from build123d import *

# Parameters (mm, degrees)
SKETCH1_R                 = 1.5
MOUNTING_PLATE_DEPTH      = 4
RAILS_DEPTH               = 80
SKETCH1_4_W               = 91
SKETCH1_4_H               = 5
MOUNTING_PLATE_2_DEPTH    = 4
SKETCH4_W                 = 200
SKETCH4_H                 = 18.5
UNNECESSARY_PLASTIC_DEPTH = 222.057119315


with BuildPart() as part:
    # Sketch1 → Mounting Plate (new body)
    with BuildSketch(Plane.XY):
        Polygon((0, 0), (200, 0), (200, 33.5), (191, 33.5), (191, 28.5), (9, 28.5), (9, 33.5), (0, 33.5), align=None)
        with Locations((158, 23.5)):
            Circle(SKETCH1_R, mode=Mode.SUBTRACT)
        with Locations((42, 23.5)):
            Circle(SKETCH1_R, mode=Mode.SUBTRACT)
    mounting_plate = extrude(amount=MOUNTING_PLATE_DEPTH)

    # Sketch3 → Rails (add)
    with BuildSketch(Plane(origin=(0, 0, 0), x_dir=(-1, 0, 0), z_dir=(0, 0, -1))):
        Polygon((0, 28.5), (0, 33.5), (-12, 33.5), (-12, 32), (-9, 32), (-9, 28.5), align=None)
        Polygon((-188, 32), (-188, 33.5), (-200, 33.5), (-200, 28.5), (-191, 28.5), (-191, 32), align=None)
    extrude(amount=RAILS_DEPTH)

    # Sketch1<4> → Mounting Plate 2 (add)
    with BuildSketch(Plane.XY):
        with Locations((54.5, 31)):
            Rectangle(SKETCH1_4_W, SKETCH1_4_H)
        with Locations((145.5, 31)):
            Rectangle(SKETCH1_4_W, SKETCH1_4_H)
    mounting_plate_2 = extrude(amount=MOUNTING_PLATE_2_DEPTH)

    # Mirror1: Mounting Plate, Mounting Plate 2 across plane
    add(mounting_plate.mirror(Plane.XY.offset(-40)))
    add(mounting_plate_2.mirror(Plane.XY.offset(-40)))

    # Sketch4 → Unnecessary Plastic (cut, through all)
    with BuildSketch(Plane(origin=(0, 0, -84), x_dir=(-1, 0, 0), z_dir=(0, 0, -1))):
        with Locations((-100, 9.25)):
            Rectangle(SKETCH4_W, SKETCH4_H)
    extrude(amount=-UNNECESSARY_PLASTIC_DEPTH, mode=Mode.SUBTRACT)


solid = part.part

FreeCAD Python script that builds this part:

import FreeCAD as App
import Part
import Sketcher
from FreeCAD import Vector
Q = App.Units.Quantity

doc = App.newDocument("Part")
body = doc.addObject("PartDesign::Body", "Body")

sketch1 = body.newObject("Sketcher::SketchObject", "Sketch")
sketch1.AttachmentSupport = (doc.getObject("XY_Plane"), [""])
sketch1.MapMode = "FlatFace"
sketch1.addGeometry(Part.LineSegment(Vector(0, 0, 0), Vector(200, 0, 0)), False)
sketch1.addGeometry(Part.LineSegment(Vector(200, 0, 0), Vector(200, 33.5, 0)), False)
sketch1.addGeometry(Part.LineSegment(Vector(200, 33.5, 0), Vector(191, 33.5, 0)), False)
sketch1.addGeometry(Part.LineSegment(Vector(191, 33.5, 0), Vector(191, 28.5, 0)), False)
sketch1.addGeometry(Part.LineSegment(Vector(191, 28.5, 0), Vector(9, 28.5, 0)), False)
sketch1.addGeometry(Part.LineSegment(Vector(9, 28.5, 0), Vector(9, 33.5, 0)), False)
sketch1.addGeometry(Part.LineSegment(Vector(9, 33.5, 0), Vector(0, 33.5, 0)), False)
sketch1.addGeometry(Part.LineSegment(Vector(0, 33.5, 0), Vector(0, 0, 0)), False)
sketch1.addGeometry(Part.Circle(Vector(42, 23.5, 0), Vector(0, 0, 1), 1.5), False)
sketch1.addGeometry(Part.Circle(Vector(158, 23.5, 0), Vector(0, 0, 1), 1.5), False)
sketch1.addConstraint(Sketcher.Constraint("Coincident", 0, 2, 1, 1))
sketch1.addConstraint(Sketcher.Constraint("Coincident", 1, 2, 2, 1))
sketch1.addConstraint(Sketcher.Constraint("Coincident", 2, 2, 3, 1))
sketch1.addConstraint(Sketcher.Constraint("Coincident", 3, 2, 4, 1))
sketch1.addConstraint(Sketcher.Constraint("Coincident", 4, 2, 5, 1))
sketch1.addConstraint(Sketcher.Constraint("Coincident", 5, 2, 6, 1))
sketch1.addConstraint(Sketcher.Constraint("Coincident", 6, 2, 7, 1))
sketch1.addConstraint(Sketcher.Constraint("Coincident", 7, 2, 0, 1))
sketch1.addConstraint(Sketcher.Constraint("Horizontal", 0))
sketch1.addConstraint(Sketcher.Constraint("Vertical", 1))
sketch1.addConstraint(Sketcher.Constraint("Horizontal", 2))
sketch1.addConstraint(Sketcher.Constraint("Vertical", 3))
sketch1.addConstraint(Sketcher.Constraint("Horizontal", 4))
sketch1.addConstraint(Sketcher.Constraint("Vertical", 5))
sketch1.addConstraint(Sketcher.Constraint("Horizontal", 6))
sketch1.addConstraint(Sketcher.Constraint("Vertical", 7))
sketch1.addConstraint(Sketcher.Constraint("Coincident", 7, 2, -1, 1))
sketch1.addConstraint(Sketcher.Constraint("Equal", 8, 9))
sketch1.addConstraint(Sketcher.Constraint("Horizontal", 8, 3, 9, 3))
sketch1.addConstraint(Sketcher.Constraint("Horizontal", 2, 2, 5, 2))
sketch1.addConstraint(Sketcher.Constraint("Equal", 2, 6))
sketch1.addConstraint(Sketcher.Constraint("Diameter", 8, Q("3 mm")))
sketch1.addConstraint(Sketcher.Constraint("DistanceX", 0, 1, 0, 2, Q("200 mm")))
sketch1.addConstraint(Sketcher.Constraint("DistanceX", 2, 2, 2, 1, Q("9 mm")))
sketch1.addConstraint(Sketcher.Constraint("DistanceY", 3, 2, 3, 1, Q("5 mm")))
sketch1.addConstraint(Sketcher.Constraint("DistanceY", 1, 1, 1, 2, Q("33.5 mm")))
sketch1.addConstraint(Sketcher.Constraint("DistanceX", -1, 1, 8, 3, Q("42 mm")))
sketch1.addConstraint(Sketcher.Constraint("DistanceX", -1, 1, 9, 3, Q("158 mm")))
sketch1.addConstraint(Sketcher.Constraint("DistanceY", 9, 3, 1, 2, Q("10 mm")))
pad1 = body.newObject("PartDesign::Pad", "Pad")
pad1.Profile = sketch1
pad1.Length = 4

sketch2 = body.newObject("Sketcher::SketchObject", "Sketch001")
sketch2.AttachmentSupport = (doc.getObject("XY_Plane"), [""])
sketch2.MapMode = "FlatFace"
sketch2.addGeometry(Part.LineSegment(Vector(0, 28.5, 0), Vector(0, 33.5, 0)), False)
sketch2.addGeometry(Part.LineSegment(Vector(0, 33.5, 0), Vector(12, 33.5, 0)), False)
sketch2.addGeometry(Part.LineSegment(Vector(12, 33.5, 0), Vector(12, 32, 0)), False)
sketch2.addGeometry(Part.LineSegment(Vector(12, 32, 0), Vector(9, 32, 0)), False)
sketch2.addGeometry(Part.LineSegment(Vector(9, 32, 0), Vector(9, 28.5, 0)), False)
sketch2.addGeometry(Part.LineSegment(Vector(9, 28.5, 0), Vector(0, 28.5, 0)), False)
sketch2.addGeometry(Part.LineSegment(Vector(188, 32, 0), Vector(188, 33.5, 0)), False)
sketch2.addGeometry(Part.LineSegment(Vector(188, 33.5, 0), Vector(200, 33.5, 0)), False)
sketch2.addGeometry(Part.LineSegment(Vector(200, 33.5, 0), Vector(200, 28.5, 0)), False)
sketch2.addGeometry(Part.LineSegment(Vector(200, 28.5, 0), Vector(191, 28.5, 0)), False)
sketch2.addGeometry(Part.LineSegment(Vector(191, 28.5, 0), Vector(191, 32, 0)), False)
sketch2.addGeometry(Part.LineSegment(Vector(191, 32, 0), Vector(188, 32, 0)), False)
sketch2.addConstraint(Sketcher.Constraint("Coincident", 0, 2, 1, 1))
sketch2.addConstraint(Sketcher.Constraint("Coincident", 1, 2, 2, 1))
sketch2.addConstraint(Sketcher.Constraint("Coincident", 2, 2, 3, 1))
sketch2.addConstraint(Sketcher.Constraint("Coincident", 3, 2, 4, 1))
sketch2.addConstraint(Sketcher.Constraint("Coincident", 4, 2, 5, 1))
sketch2.addConstraint(Sketcher.Constraint("Coincident", 5, 2, 0, 1))
sketch2.addConstraint(Sketcher.Constraint("Coincident", 6, 2, 7, 1))
sketch2.addConstraint(Sketcher.Constraint("Coincident", 7, 2, 8, 1))
sketch2.addConstraint(Sketcher.Constraint("Coincident", 8, 2, 9, 1))
sketch2.addConstraint(Sketcher.Constraint("Coincident", 9, 2, 10, 1))
sketch2.addConstraint(Sketcher.Constraint("Coincident", 10, 2, 11, 1))
sketch2.addConstraint(Sketcher.Constraint("Coincident", 11, 2, 6, 1))
sketch2.addConstraint(Sketcher.Constraint("Vertical", 0))
sketch2.addConstraint(Sketcher.Constraint("Horizontal", 1))
sketch2.addConstraint(Sketcher.Constraint("Vertical", 2))
sketch2.addConstraint(Sketcher.Constraint("Horizontal", 3))
sketch2.addConstraint(Sketcher.Constraint("Vertical", 4))
sketch2.addConstraint(Sketcher.Constraint("Horizontal", 5))
sketch2.addConstraint(Sketcher.Constraint("Vertical", 6))
sketch2.addConstraint(Sketcher.Constraint("Horizontal", 7))
sketch2.addConstraint(Sketcher.Constraint("Vertical", 8))
sketch2.addConstraint(Sketcher.Constraint("Horizontal", 9))
sketch2.addConstraint(Sketcher.Constraint("Vertical", 10))
sketch2.addConstraint(Sketcher.Constraint("Horizontal", 11))
sketch2.addConstraint(Sketcher.Constraint("PointOnObject", 0, 2, -2))
sketch2.addConstraint(Sketcher.Constraint("Horizontal", 1, 2, 6, 2))
sketch2.addConstraint(Sketcher.Constraint("Horizontal", 5, 2, 8, 2))
sketch2.addConstraint(Sketcher.Constraint("Horizontal", 3, 2, 10, 2))
sketch2.addConstraint(Sketcher.Constraint("Equal", 1, 7))
sketch2.addConstraint(Sketcher.Constraint("Equal", 5, 9))
sketch2.addConstraint(Sketcher.Constraint("DistanceX", 1, 1, 1, 2, Q("12 mm")))
sketch2.addConstraint(Sketcher.Constraint("DistanceX", 3, 2, 3, 1, Q("3 mm")))
sketch2.addConstraint(Sketcher.Constraint("DistanceY", 0, 1, 0, 2, Q("5 mm")))
sketch2.addConstraint(Sketcher.Constraint("DistanceY", 2, 2, 2, 1, Q("1.5 mm")))
sketch2.addConstraint(Sketcher.Constraint("DistanceY", -1, 1, 2, 2, Q("32 mm")))
sketch2.addConstraint(Sketcher.Constraint("DistanceX", -1, 1, 6, 2, Q("188 mm")))
pad2 = body.newObject("PartDesign::Pad", "Pad001")
pad2.Profile = sketch2
pad2.Length = 80
pad2.Reversed = True

sketch3 = body.newObject("Sketcher::SketchObject", "Sketch002")
sketch3.AttachmentSupport = (doc.getObject("XY_Plane"), [""])
sketch3.MapMode = "FlatFace"
sketch3.addGeometry(Part.LineSegment(Vector(9, 34, 0), Vector(9, 28, 0)), False)
sketch3.addGeometry(Part.LineSegment(Vector(9, 28, 0), Vector(191, 28, 0)), False)
sketch3.addGeometry(Part.LineSegment(Vector(191, 28, 0), Vector(191, 34, 0)), False)
sketch3.addGeometry(Part.LineSegment(Vector(191, 34, 0), Vector(9, 34, 0)), False)
sketch3.addConstraint(Sketcher.Constraint("Coincident", 0, 2, 1, 1))
sketch3.addConstraint(Sketcher.Constraint("Coincident", 1, 2, 2, 1))
sketch3.addConstraint(Sketcher.Constraint("Coincident", 2, 2, 3, 1))
sketch3.addConstraint(Sketcher.Constraint("Coincident", 3, 2, 0, 1))
sketch3.addConstraint(Sketcher.Constraint("Vertical", 0))
sketch3.addConstraint(Sketcher.Constraint("Horizontal", 1))
sketch3.addConstraint(Sketcher.Constraint("Vertical", 2))
sketch3.addConstraint(Sketcher.Constraint("Horizontal", 3))
sketch3.addConstraint(Sketcher.Constraint("DistanceX", 1, 1, 1, 2, Q("182 mm")))
sketch3.addConstraint(Sketcher.Constraint("DistanceY", 0, 2, 0, 1, Q("5 mm")))
sketch3.addConstraint(Sketcher.Constraint("DistanceX", -1, 1, 0, 2, Q("9 mm")))
sketch3.addConstraint(Sketcher.Constraint("DistanceY", -1, 1, 0, 2, Q("28.5 mm")))
pad3 = body.newObject("PartDesign::Pad", "Pad002")
pad3.Profile = sketch3
pad3.Length = 4
doc.recompute()

datumplane = body.newObject("PartDesign::Plane", "DatumPlane")
datumplane.AttachmentSupport = (doc.getObject("XY_Plane"), [""])
datumplane.MapMode = "FlatFace"
datumplane.AttachmentOffset = App.Placement(Vector(0, 0, -40), App.Rotation())
mirrored = body.newObject("PartDesign::Mirrored", "Mirrored")
mirrored.Originals = [pad1, pad3]
mirrored.MirrorPlane = (datumplane, [""])
body.Tip = mirrored

sketch4 = body.newObject("Sketcher::SketchObject", "Sketch003")
sketch4.AttachmentSupport = (doc.getObject("XY_Plane"), [""])
sketch4.MapMode = "FlatFace"
sketch4.AttachmentOffset = App.Placement(Vector(0, 0, -84), App.Rotation())
sketch4.addGeometry(Part.LineSegment(Vector(200, 18, 0), Vector(200, 0, 0)), False)
sketch4.addGeometry(Part.LineSegment(Vector(200, 0, 0), Vector(0, 0, 0)), False)
sketch4.addGeometry(Part.LineSegment(Vector(0, 0, 0), Vector(0, 18, 0)), False)
sketch4.addGeometry(Part.LineSegment(Vector(0, 18, 0), Vector(200, 18, 0)), False)
sketch4.addConstraint(Sketcher.Constraint("Coincident", 0, 2, 1, 1))
sketch4.addConstraint(Sketcher.Constraint("Coincident", 1, 2, 2, 1))
sketch4.addConstraint(Sketcher.Constraint("Coincident", 2, 2, 3, 1))
sketch4.addConstraint(Sketcher.Constraint("Coincident", 3, 2, 0, 1))
sketch4.addConstraint(Sketcher.Constraint("Vertical", 0))
sketch4.addConstraint(Sketcher.Constraint("Horizontal", 1))
sketch4.addConstraint(Sketcher.Constraint("Vertical", 2))
sketch4.addConstraint(Sketcher.Constraint("Horizontal", 3))
sketch4.addConstraint(Sketcher.Constraint("Coincident", 1, 2, -1, 1))
sketch4.addConstraint(Sketcher.Constraint("DistanceX", 1, 2, 1, 1, Q("200 mm")))
sketch4.addConstraint(Sketcher.Constraint("DistanceY", 0, 2, 0, 1, Q("18.5 mm")))
pocket1 = body.newObject("PartDesign::Pocket", "Pocket")
pocket1.Profile = sketch4
pocket1.Type = "ThroughAll"
pocket1.Reversed = True

doc.recompute()
